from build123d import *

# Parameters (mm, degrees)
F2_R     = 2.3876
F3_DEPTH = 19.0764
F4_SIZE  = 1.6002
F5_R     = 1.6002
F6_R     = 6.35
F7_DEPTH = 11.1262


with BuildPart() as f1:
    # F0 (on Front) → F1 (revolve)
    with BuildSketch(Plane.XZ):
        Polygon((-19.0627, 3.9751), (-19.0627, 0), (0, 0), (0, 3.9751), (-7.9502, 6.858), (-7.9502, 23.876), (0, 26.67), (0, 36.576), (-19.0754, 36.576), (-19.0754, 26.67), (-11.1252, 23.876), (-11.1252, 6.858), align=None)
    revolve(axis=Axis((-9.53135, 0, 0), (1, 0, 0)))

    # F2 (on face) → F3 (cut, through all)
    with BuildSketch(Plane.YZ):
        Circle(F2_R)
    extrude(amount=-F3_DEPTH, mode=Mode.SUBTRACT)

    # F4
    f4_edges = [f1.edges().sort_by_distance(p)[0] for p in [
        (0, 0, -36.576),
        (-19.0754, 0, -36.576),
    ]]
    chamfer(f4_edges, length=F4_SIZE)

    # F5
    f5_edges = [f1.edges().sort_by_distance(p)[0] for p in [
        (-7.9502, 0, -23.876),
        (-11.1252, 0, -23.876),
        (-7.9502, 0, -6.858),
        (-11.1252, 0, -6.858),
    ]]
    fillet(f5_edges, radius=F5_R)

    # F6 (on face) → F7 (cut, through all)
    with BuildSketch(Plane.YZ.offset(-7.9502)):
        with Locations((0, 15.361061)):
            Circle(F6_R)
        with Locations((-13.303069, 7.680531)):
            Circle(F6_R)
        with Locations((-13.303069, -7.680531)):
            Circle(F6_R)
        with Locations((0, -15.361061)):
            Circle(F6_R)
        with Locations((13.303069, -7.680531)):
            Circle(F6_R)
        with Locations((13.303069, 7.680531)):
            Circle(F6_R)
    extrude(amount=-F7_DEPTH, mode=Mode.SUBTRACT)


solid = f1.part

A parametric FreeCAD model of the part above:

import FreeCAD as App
import Part
import Sketcher

V = App.Vector
Q = App.Units.Quantity


def edges_at(feature, points):
    """Names of the edges that pass closest to the given points."""
    edges = feature.Shape.Edges
    near = lambda p: min(range(len(edges)), key=lambda i: edges[i].distToShape(Part.Vertex(*p))[0])
    return sorted({f"Edge{near(p) + 1}" for p in points})

doc = App.newDocument("Part")
body = doc.addObject("PartDesign::Body", "Body")

# Sketch on XZ plane
sketch1 = doc.addObject("Sketcher::SketchObject", "Sketch")
body.addObject(sketch1)
sketch1.AttachmentSupport = (doc.XZ_Plane, [""])
sketch1.MapMode = "FlatFace"
sketch1.addGeometry(Part.LineSegment(V(-19.0627, 3.9751, 0), V(-19.0627, 0, 0)), False)
sketch1.addGeometry(Part.LineSegment(V(-19.0627, 0, 0), V(0, 0, 0)), False)
sketch1.addGeometry(Part.LineSegment(V(0, 0, 0), V(0, 3.9751, 0)), False)
sketch1.addGeometry(Part.LineSegment(V(0, 3.9751, 0), V(-7.9502, 6.858, 0)), False)
sketch1.addGeometry(Part.LineSegment(V(-7.9502, 6.858, 0), V(-7.9502, 23.876, 0)), False)
sketch1.addGeometry(Part.LineSegment(V(-7.9502, 23.876, 0), V(0, 26.67, 0)), False)
sketch1.addGeometry(Part.LineSegment(V(0, 26.67, 0), V(0, 36.576, 0)), False)
sketch1.addGeometry(Part.LineSegment(V(0, 36.576, 0), V(-19.0754, 36.576, 0)), False)
sketch1.addGeometry(Part.LineSegment(V(-19.0754, 36.576, 0), V(-19.0754, 26.67, 0)), False)
sketch1.addGeometry(Part.LineSegment(V(-19.0754, 26.67, 0), V(-11.1252, 23.876, 0)), False)
sketch1.addGeometry(Part.LineSegment(V(-11.1252, 23.876, 0), V(-11.1252, 6.858, 0)), False)
sketch1.addGeometry(Part.LineSegment(V(-11.1252, 6.858, 0), V(-19.0627, 3.9751, 0)), False)
sketch1.addConstraint(Sketcher.Constraint("Coincident", 0, 2, 1, 1))
sketch1.addConstraint(Sketcher.Constraint("Coincident", 1, 2, 2, 1))
sketch1.addConstraint(Sketcher.Constraint("Coincident", 2, 2, 3, 1))
sketch1.addConstraint(Sketcher.Constraint("Coincident", 3, 2, 4, 1))
sketch1.addConstraint(Sketcher.Constraint("Coincident", 4, 2, 5, 1))
sketch1.addConstraint(Sketcher.Constraint("Coincident", 5, 2, 6, 1))
sketch1.addConstraint(Sketcher.Constraint("Coincident", 6, 2, 7, 1))
sketch1.addConstraint(Sketcher.Constraint("Coincident", 7, 2, 8, 1))
sketch1.addConstraint(Sketcher.Constraint("Coincident", 8, 2, 9, 1))
sketch1.addConstraint(Sketcher.Constraint("Coincident", 9, 2, 10, 1))
sketch1.addConstraint(Sketcher.Constraint("Coincident", 10, 2, 11, 1))
sketch1.addConstraint(Sketcher.Constraint("Coincident", 11, 2, 0, 1))
sketch1.addConstraint(Sketcher.Constraint("Vertical", 0))
sketch1.addConstraint(Sketcher.Constraint("Horizontal", 1))
sketch1.addConstraint(Sketcher.Constraint("Vertical", 2))
sketch1.addConstraint(Sketcher.Constraint("Vertical", 4))
sketch1.addConstraint(Sketcher.Constraint("Vertical", 6))
sketch1.addConstraint(Sketcher.Constraint("Horizontal", 7))
sketch1.addConstraint(Sketcher.Constraint("Vertical", 8))
sketch1.addConstraint(Sketcher.Constraint("Vertical", 10))
sketch1.addConstraint(Sketcher.Constraint("Coincident", 1, 2, -1, 1))
sketch1.addConstraint(Sketcher.Constraint("PointOnObject", 5, 2, -2))
sketch1.addConstraint(Sketcher.Constraint("Horizontal", 5, 2, 8, 2))
sketch1.addConstraint(Sketcher.Constraint("Horizontal", 4, 2, 9, 2))
sketch1.addConstraint(Sketcher.Constraint("Horizontal", 3, 2, 10, 2))
sketch1.addConstraint(Sketcher.Constraint("Horizontal", 2, 2, 11, 2))
sketch1.addConstraint(Sketcher.Constraint("Equal", 5, 9))
sketch1.addConstraint(Sketcher.Constraint("DistanceY", 4, 1, 4, 2, Q("0.67 in")))
sketch1.addConstraint(Sketcher.Constraint("DistanceY", 6, 1, 6, 2, Q("0.39 in")))
sketch1.addConstraint(Sketcher.Constraint("DistanceY", 4, 2, 6, 2, Q("0.5 in")))
sketch1.addConstraint(Sketcher.Constraint("DistanceX", 7, 2, 7, 1, Q("0.751 in")))
sketch1.addConstraint(Sketcher.Constraint("DistanceY", -1, 1, 3, 2, Q("0.27 in")))
sketch1.addConstraint(Sketcher.Constraint("DistanceX", 1, 1, 1, 2, Q("0.7505 in")))
sketch1.addConstraint(Sketcher.Constraint("DistanceY", 0, 2, 0, 1, Q("0.1565 in")))
sketch1.addConstraint(Sketcher.Constraint("DistanceX", 3, 2, -1, 1, Q("0.313 in")))
revolution = doc.addObject("PartDesign::Revolution", "Revolution")
body.addObject(revolution)
revolution.Profile = sketch1
revolution.ReferenceAxis = (sketch1, ["H_Axis"])
revolution.Angle = 360

# Sketch on YZ plane
sketch2 = doc.addObject("Sketcher::SketchObject", "Sketch001")
body.addObject(sketch2)
sketch2.AttachmentSupport = (doc.YZ_Plane, [""])
sketch2.MapMode = "FlatFace"
sketch2.addGeometry(Part.Circle(V(0, 0, 0), V(0, 0, 1), 2.3876), False)
sketch2.addConstraint(Sketcher.Constraint("Coincident", 0, 3, -1, 1))
sketch2.addConstraint(Sketcher.Constraint("Diameter", 0, Q("0.188 in")))
pocket1 = doc.addObject("PartDesign::Pocket", "Pocket")
body.addObject(pocket1)
pocket1.Profile = sketch2
pocket1.Type = "ThroughAll"
doc.recompute()

chamfer = doc.addObject("PartDesign::Chamfer", "Chamfer")
body.addObject(chamfer)
chamfer.Base = (pocket1, edges_at(pocket1, [(0, 0, -36.576), (-19.075, 0, -36.576)]))
chamfer.Size = Q("0.063 in")
doc.recompute()

fillet = doc.addObject("PartDesign::Fillet", "Fillet")
body.addObject(fillet)
fillet.Base = (chamfer, edges_at(chamfer, [
    (-7.95, 0, -23.876),
    (-11.125, 0, -23.876),
    (-7.95, 0, -6.858),
    (-11.125, 0, -6.858),
]))
fillet.Radius = Q("0.063 in")

# Sketch on YZ plane
sketch3 = doc.addObject("Sketcher::SketchObject", "Sketch002")
body.addObject(sketch3)
sketch3.AttachmentSupport = (doc.YZ_Plane, [""])
sketch3.MapMode = "FlatFace"
sketch3.AttachmentOffset = App.Placement(V(0, 0, -0.313 * 25.4), App.Rotation())
sketch3.addGeometry(Part.Circle(V(0, 15.361061, 0), V(0, 0, 1), 6.35), False)
sketch3.addGeometry(Part.Circle(V(-13.303069, 7.680531, 0), V(0, 0, 1), 6.35), False)
sketch3.addGeometry(Part.Circle(V(-13.303069, -7.680531, 0), V(0, 0, 1), 6.35), False)
sketch3.addGeometry(Part.Circle(V(0, -15.361061, 0), V(0, 0, 1), 6.35), False)
sketch3.addGeometry(Part.Circle(V(13.303069, -7.680531, 0), V(0, 0, 1), 6.35), False)
sketch3.addGeometry(Part.Circle(V(13.303069, 7.680531, 0), V(0, 0, 1), 6.35), False)
sketch3.addConstraint(Sketcher.Constraint("Equal", 0, 1))
sketch3.addConstraint(Sketcher.Constraint("Equal", 1, 2))
sketch3.addConstraint(Sketcher.Constraint("Equal", 2, 3))
sketch3.addConstraint(Sketcher.Constraint("Equal", 3, 4))
sketch3.addConstraint(Sketcher.Constraint("Equal", 4, 5))
sketch3.addConstraint(Sketcher.Constraint("Symmetric", 0, 3, 3, 3, -1, 1))
sketch3.addConstraint(Sketcher.Constraint("Symmetric", 1, 3, 4, 3, -1, 1))
sketch3.addConstraint(Sketcher.Constraint("Symmetric", 2, 3, 5, 3, -1, 1))
sketch3.addConstraint(Sketcher.Constraint("Symmetric", 2, 3, 4, 3, -2))
sketch3.addConstraint(Sketcher.Constraint("PointOnObject", 0, 3, -2))
sketch3.addConstraint(Sketcher.Constraint("Diameter", 0, Q("0.5 in")))
sketch3.addConstraint(Sketcher.Constraint("DistanceY", -1, 1, 0, 3, Q("15.361061 mm")))
sketch3.addConstraint(Sketcher.Constraint("DistanceX", 1, 3, -1, 1, Q("13.303069 mm")))
sketch3.addConstraint(Sketcher.Constraint("DistanceY", -1, 1, 1, 3, Q("7.680531 mm")))
pocket2 = doc.addObject("PartDesign::Pocket", "Pocket001")
body.addObject(pocket2)
pocket2.Profile = sketch3
pocket2.Type = "ThroughAll"

doc.recompute()
